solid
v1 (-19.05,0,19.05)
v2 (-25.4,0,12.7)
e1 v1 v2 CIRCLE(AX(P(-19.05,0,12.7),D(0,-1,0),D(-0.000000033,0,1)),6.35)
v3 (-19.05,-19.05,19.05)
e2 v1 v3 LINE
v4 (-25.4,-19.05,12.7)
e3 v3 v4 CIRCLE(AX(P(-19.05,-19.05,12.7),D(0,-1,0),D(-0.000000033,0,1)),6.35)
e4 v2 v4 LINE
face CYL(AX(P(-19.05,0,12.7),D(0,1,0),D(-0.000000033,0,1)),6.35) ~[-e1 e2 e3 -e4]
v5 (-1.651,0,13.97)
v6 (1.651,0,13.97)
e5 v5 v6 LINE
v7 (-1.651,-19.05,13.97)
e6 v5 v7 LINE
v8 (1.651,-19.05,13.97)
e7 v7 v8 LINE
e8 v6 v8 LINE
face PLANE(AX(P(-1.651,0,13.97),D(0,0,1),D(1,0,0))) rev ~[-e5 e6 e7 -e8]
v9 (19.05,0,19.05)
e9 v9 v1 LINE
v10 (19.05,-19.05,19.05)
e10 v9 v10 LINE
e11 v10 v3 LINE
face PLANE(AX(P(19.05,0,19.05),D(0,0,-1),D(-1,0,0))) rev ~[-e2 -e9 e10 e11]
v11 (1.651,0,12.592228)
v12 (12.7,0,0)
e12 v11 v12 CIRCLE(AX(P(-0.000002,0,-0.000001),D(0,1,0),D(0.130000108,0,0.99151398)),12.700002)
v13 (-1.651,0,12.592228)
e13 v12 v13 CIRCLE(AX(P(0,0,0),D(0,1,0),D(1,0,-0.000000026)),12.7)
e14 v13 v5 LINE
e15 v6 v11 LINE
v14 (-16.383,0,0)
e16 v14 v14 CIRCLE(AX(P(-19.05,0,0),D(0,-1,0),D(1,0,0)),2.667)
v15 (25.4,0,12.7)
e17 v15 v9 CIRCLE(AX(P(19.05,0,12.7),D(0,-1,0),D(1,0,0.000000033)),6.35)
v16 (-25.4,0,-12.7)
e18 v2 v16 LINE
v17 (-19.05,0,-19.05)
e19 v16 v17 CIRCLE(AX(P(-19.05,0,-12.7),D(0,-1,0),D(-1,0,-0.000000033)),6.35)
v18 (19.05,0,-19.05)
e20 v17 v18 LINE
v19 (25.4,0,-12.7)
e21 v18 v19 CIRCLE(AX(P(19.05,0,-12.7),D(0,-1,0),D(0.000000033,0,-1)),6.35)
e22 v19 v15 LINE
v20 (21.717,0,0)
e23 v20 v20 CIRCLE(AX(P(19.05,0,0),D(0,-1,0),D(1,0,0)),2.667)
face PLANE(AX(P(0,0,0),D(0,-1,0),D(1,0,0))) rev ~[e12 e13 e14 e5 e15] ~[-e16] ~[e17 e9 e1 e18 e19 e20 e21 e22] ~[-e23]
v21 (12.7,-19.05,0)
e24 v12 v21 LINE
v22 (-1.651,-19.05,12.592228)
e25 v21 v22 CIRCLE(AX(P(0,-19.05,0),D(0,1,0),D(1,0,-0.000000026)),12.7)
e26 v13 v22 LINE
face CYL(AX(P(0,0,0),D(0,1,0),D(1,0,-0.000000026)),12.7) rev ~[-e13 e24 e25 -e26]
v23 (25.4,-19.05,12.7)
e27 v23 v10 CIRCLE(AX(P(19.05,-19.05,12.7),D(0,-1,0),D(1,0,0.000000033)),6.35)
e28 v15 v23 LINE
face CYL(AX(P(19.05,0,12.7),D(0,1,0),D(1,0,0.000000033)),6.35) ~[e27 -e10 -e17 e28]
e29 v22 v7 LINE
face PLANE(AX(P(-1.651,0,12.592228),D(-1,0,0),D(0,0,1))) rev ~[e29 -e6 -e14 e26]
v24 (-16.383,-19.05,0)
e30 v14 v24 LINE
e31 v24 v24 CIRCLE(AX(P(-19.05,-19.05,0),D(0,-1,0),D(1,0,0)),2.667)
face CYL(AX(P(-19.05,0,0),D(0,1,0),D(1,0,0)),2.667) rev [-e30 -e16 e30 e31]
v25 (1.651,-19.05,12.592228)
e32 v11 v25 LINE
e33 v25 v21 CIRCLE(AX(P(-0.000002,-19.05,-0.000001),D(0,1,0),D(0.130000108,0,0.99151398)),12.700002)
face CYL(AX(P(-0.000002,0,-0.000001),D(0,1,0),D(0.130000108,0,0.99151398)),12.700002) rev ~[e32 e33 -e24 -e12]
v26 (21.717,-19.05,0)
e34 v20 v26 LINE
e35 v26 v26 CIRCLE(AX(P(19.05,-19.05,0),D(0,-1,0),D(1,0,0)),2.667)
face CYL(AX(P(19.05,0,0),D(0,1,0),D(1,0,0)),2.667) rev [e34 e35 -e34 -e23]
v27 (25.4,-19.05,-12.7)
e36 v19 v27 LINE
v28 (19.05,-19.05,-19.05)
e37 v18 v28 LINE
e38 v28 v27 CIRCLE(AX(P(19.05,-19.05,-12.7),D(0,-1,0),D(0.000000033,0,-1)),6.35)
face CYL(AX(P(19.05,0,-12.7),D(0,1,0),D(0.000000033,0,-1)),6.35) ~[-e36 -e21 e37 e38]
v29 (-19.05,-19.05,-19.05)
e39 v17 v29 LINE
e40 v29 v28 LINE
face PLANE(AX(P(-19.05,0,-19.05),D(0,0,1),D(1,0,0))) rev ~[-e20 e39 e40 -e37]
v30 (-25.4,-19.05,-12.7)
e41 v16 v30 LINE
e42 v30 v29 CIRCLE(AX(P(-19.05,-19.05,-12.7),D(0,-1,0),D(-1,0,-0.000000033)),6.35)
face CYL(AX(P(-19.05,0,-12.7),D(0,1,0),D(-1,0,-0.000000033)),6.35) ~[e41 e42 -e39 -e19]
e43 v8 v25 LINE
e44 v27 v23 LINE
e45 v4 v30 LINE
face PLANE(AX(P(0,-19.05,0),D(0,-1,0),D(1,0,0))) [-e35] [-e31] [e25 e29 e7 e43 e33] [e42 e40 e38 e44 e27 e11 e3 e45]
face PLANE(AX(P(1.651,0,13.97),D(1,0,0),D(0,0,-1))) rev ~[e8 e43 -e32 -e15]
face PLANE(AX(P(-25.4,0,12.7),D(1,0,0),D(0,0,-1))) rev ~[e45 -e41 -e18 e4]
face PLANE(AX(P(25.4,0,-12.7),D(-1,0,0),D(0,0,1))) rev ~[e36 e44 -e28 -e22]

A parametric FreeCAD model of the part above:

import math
import FreeCAD as App
import Part
import Sketcher

V = App.Vector
Q = App.Units.Quantity

doc = App.newDocument("Part")
params = doc.addObject("Spreadsheet::Sheet", "Params")
for row, (alias, value) in enumerate([
    ("sketch1_radius", "0.5000001 in"),
    ("sketch1_diameter", "0.21 in"),
    ("sketch1_height", "1 in"),
    ("sketch1_radius2", "0.25 in"),
    ("sketch1_width", "1.5 in"),
    ("pad1_length", "0.75 in"),
    ("sketch2_radius", "0.5000001 in"),
    ("sketch2_diameter", "0.21 in"),
    ("sketch2_height", "1 in"),
    ("sketch2_radius2", "0.25 in"),
    ("sketch2_width", "1.5 in"),
    ("pad2_length", "0.75 in"),
], start=1):
    params.set(f"A{row}", alias)
    params.set(f"B{row}", "=" + value)
    params.setAlias(f"B{row}", alias)

body = doc.addObject("PartDesign::Body", "Body")

# Sketch on XZ plane
sketch1 = body.newObject("Sketcher::SketchObject", "Sketch")
sketch1.AttachmentSupport = (doc.getObject("XZ_Plane"), [""])
sketch1.MapMode = "FlatFace"
sketch1.addGeometry([
    Part.LineSegment(V(19.05, 19.05, 0), V(-19.05, 19.05, 0)),  # 0
    Part.ArcOfCircle(Part.Circle(V(-19.05, 12.7, 0), V(0, 0, 1), 6.35), math.radians(90.000002), math.radians(179.999998)),  # 1
    Part.LineSegment(V(-25.4, 12.7, 0), V(-25.4, -12.7, 0)),  # 2
    Part.ArcOfCircle(Part.Circle(V(-19.05, -12.7, 0), V(0, 0, 1), 6.35), math.radians(-179.999998), math.radians(-90.000002)),  # 3
    Part.LineSegment(V(-19.05, -19.05, 0), V(19.05, -19.05, 0)),  # 4
    Part.ArcOfCircle(Part.Circle(V(19.05, -12.7, 0), V(0, 0, 1), 6.35), math.radians(-89.999998), math.radians(-0.000002)),  # 5
    Part.LineSegment(V(25.4, -12.7, 0), V(25.4, 12.7, 0)),  # 6
    Part.ArcOfCircle(Part.Circle(V(19.05, 12.7, 0), V(0, 0, 1), 6.35), math.radians(0.000002), math.radians(89.999998)),  # 7
    Part.Circle(V(-19.05, 0, 0), V(0, 0, 1), 2.667),  # 8
    Part.Circle(V(19.05, 0, 0), V(0, 0, 1), 2.667),  # 9
    Part.LineSegment(V(1.651, 13.97, 0), V(1.651, 12.592228, 0)),  # 10
    Part.ArcOfCircle(Part.Circle(V(-0.000002, -0.000001, 0), V(0, 0, 1), 12.700002), math.radians(0.000005), math.radians(82.530401)),  # 11
    Part.ArcOfCircle(Part.Circle(V(0, 0, 0), V(0, 0, 1), 12.7), math.radians(97.469593), math.radians(359.999998)),  # 12
    Part.LineSegment(V(-1.651, 12.592228, 0), V(-1.651, 13.97, 0)),  # 13
    Part.LineSegment(V(-1.651, 13.97, 0), V(1.651, 13.97, 0)),  # 14
], False)
sketch1.addConstraint([
    Sketcher.Constraint("Tangent", 0, 2, 1, 1),
    Sketcher.Constraint("Tangent", 1, 2, 2, 1),
    Sketcher.Constraint("Tangent", 2, 2, 3, 1),
    Sketcher.Constraint("Tangent", 3, 2, 4, 1),
    Sketcher.Constraint("Tangent", 4, 2, 5, 1),
    Sketcher.Constraint("Tangent", 5, 2, 6, 1),
    Sketcher.Constraint("Tangent", 6, 2, 7, 1),
    Sketcher.Constraint("Tangent", 7, 2, 0, 1),
    Sketcher.Constraint("Coincident", 10, 2, 11, 2),
    Sketcher.Constraint("Tangent", 11, 1, 12, 2),
    Sketcher.Constraint("Coincident", 12, 1, 13, 1),
    Sketcher.Constraint("Coincident", 13, 2, 14, 1),
    Sketcher.Constraint("Coincident", 14, 2, 10, 1),
    Sketcher.Constraint("Horizontal", 0),
    Sketcher.Constraint("Vertical", 2),
    Sketcher.Constraint("Horizontal", 4),
    Sketcher.Constraint("Vertical", 6),
    Sketcher.Constraint("Vertical", 10),
    Sketcher.Constraint("Vertical", 13),
    Sketcher.Constraint("Horizontal", 14),
    Sketcher.Constraint("Coincident", 11, 3, -1, 1),
    Sketcher.Constraint("Equal", 1, 3),
    Sketcher.Constraint("Equal", 3, 5),
    Sketcher.Constraint("Equal", 5, 7),
    Sketcher.Constraint("Equal", 8, 9),
    Sketcher.Constraint("Equal", 11, 12),
    Sketcher.Constraint("Symmetric", 1, 3, 5, 3, -1, 1),
    Sketcher.Constraint("Symmetric", 8, 3, 9, 3, -1, 1),
    Sketcher.Constraint("PointOnObject", 8, 3, -1),
    Sketcher.Constraint("PointOnObject", 11, 1, -1),
    Sketcher.Constraint("Horizontal", 10, 2, 12, 1),
    Sketcher.Constraint("Vertical", 3, 3, 8, 3),
    Sketcher.Constraint("Radius", 11, Q("0.5000001 in")),
    Sketcher.Constraint("Diameter", 8, Q("0.21 in")),
    Sketcher.Constraint("DistanceY", 2, 2, 2, 1, Q("1 in")),
    Sketcher.Constraint("Radius", 1, Q("0.25 in")),
    Sketcher.Constraint("DistanceX", 0, 2, 0, 1, Q("1.5 in")),
    Sketcher.Constraint("DistanceX", 14, 1, 14, 2, Q("0.13 in")),
    Sketcher.Constraint("DistanceY", -1, 1, 13, 2, Q("0.55 in")),
])
sketch1.setExpression("Constraints[32]", "Params.sketch1_radius")
sketch1.setExpression("Constraints[33]", "Params.sketch1_diameter")
sketch1.setExpression("Constraints[34]", "Params.sketch1_height")
sketch1.setExpression("Constraints[35]", "Params.sketch1_radius2")
sketch1.setExpression("Constraints[36]", "Params.sketch1_width")
pad1 = body.newObject("PartDesign::Pad", "Pad")
pad1.Profile = sketch1
pad1.setExpression("Length", "Params.pad1_length")

# Sketch on XZ plane
sketch2 = body.newObject("Sketcher::SketchObject", "Sketch001")
sketch2.AttachmentSupport = (doc.getObject("XZ_Plane"), [""])
sketch2.MapMode = "FlatFace"
sketch2.addGeometry([
    Part.LineSegment(V(19.05, 19.05, 0), V(-19.05, 19.05, 0)),  # 0
    Part.ArcOfCircle(Part.Circle(V(-19.05, 12.7, 0), V(0, 0, 1), 6.35), math.radians(90.000002), math.radians(179.999998)),  # 1
    Part.LineSegment(V(-25.4, 12.7, 0), V(-25.4, -12.7, 0)),  # 2
    Part.ArcOfCircle(Part.Circle(V(-19.05, -12.7, 0), V(0, 0, 1), 6.35), math.radians(-179.999998), math.radians(-90.000002)),  # 3
    Part.LineSegment(V(-19.05, -19.05, 0), V(19.05, -19.05, 0)),  # 4
    Part.ArcOfCircle(Part.Circle(V(19.05, -12.7, 0), V(0, 0, 1), 6.35), math.radians(-89.999998), math.radians(-0.000002)),  # 5
    Part.LineSegment(V(25.4, -12.7, 0), V(25.4, 12.7, 0)),  # 6
    Part.ArcOfCircle(Part.Circle(V(19.05, 12.7, 0), V(0, 0, 1), 6.35), math.radians(0.000002), math.radians(89.999998)),  # 7
    Part.Circle(V(-19.05, 0, 0), V(0, 0, 1), 2.667),  # 8
    Part.Circle(V(19.05, 0, 0), V(0, 0, 1), 2.667),  # 9
    Part.LineSegment(V(1.651, 13.97, 0), V(1.651, 12.592228, 0)),  # 10
    Part.ArcOfCircle(Part.Circle(V(-0.000002, -0.000001, 0), V(0, 0, 1), 12.700002), math.radians(0.000005), math.radians(82.530401)),  # 11
    Part.ArcOfCircle(Part.Circle(V(0, 0, 0), V(0, 0, 1), 12.7), math.radians(97.469593), math.radians(359.999998)),  # 12
    Part.LineSegment(V(-1.651, 12.592228, 0), V(-1.651, 13.97, 0)),  # 13
    Part.LineSegment(V(-1.651, 13.97, 0), V(1.651, 13.97, 0)),  # 14
], False)
sketch2.addConstraint([
    Sketcher.Constraint("Tangent", 0, 2, 1, 1),
    Sketcher.Constraint("Tangent", 1, 2, 2, 1),
    Sketcher.Constraint("Tangent", 2, 2, 3, 1),
    Sketcher.Constraint("Tangent", 3, 2, 4, 1),
    Sketcher.Constraint("Tangent", 4, 2, 5, 1),
    Sketcher.Constraint("Tangent", 5, 2, 6, 1),
    Sketcher.Constraint("Tangent", 6, 2, 7, 1),
    Sketcher.Constraint("Tangent", 7, 2, 0, 1),
    Sketcher.Constraint("Coincident", 10, 2, 11, 2),
    Sketcher.Constraint("Tangent", 11, 1, 12, 2),
    Sketcher.Constraint("Coincident", 12, 1, 13, 1),
    Sketcher.Constraint("Coincident", 13, 2, 14, 1),
    Sketcher.Constraint("Coincident", 14, 2, 10, 1),
    Sketcher.Constraint("Horizontal", 0),
    Sketcher.Constraint("Vertical", 2),
    Sketcher.Constraint("Horizontal", 4),
    Sketcher.Constraint("Vertical", 6),
    Sketcher.Constraint("Vertical", 10),
    Sketcher.Constraint("Vertical", 13),
    Sketcher.Constraint("Horizontal", 14),
    Sketcher.Constraint("Coincident", 11, 3, -1, 1),
    Sketcher.Constraint("Equal", 1, 3),
    Sketcher.Constraint("Equal", 3, 5),
    Sketcher.Constraint("Equal", 5, 7),
    Sketcher.Constraint("Equal", 8, 9),
    Sketcher.Constraint("Equal", 11, 12),
    Sketcher.Constraint("Symmetric", 1, 3, 5, 3, -1, 1),
    Sketcher.Constraint("Symmetric", 8, 3, 9, 3, -1, 1),
    Sketcher.Constraint("PointOnObject", 8, 3, -1),
    Sketcher.Constraint("PointOnObject", 11, 1, -1),
    Sketcher.Constraint("Horizontal", 10, 2, 12, 1),
    Sketcher.Constraint("Vertical", 3, 3, 8, 3),
    Sketcher.Constraint("Radius", 11, Q("0.5000001 in")),
    Sketcher.Constraint("Diameter", 8, Q("0.21 in")),
    Sketcher.Constraint("DistanceY", 2, 2, 2, 1, Q("1 in")),
    Sketcher.Constraint("Radius", 1, Q("0.25 in")),
    Sketcher.Constraint("DistanceX", 0, 2, 0, 1, Q("1.5 in")),
    Sketcher.Constraint("DistanceX", 14, 1, 14, 2, Q("0.13 in")),
    Sketcher.Constraint("DistanceY", -1, 1, 13, 2, Q("0.55 in")),
])
sketch2.setExpression("Constraints[32]", "Params.sketch2_radius")
sketch2.setExpression("Constraints[33]", "Params.sketch2_diameter")
sketch2.setExpression("Constraints[34]", "Params.sketch2_height")
sketch2.setExpression("Constraints[35]", "Params.sketch2_radius2")
sketch2.setExpression("Constraints[36]", "Params.sketch2_width")
pad2 = body.newObject("PartDesign::Pad", "Pad001")
pad2.Profile = sketch2
pad2.setExpression("Length", "Params.pad2_length")

doc.recompute()
